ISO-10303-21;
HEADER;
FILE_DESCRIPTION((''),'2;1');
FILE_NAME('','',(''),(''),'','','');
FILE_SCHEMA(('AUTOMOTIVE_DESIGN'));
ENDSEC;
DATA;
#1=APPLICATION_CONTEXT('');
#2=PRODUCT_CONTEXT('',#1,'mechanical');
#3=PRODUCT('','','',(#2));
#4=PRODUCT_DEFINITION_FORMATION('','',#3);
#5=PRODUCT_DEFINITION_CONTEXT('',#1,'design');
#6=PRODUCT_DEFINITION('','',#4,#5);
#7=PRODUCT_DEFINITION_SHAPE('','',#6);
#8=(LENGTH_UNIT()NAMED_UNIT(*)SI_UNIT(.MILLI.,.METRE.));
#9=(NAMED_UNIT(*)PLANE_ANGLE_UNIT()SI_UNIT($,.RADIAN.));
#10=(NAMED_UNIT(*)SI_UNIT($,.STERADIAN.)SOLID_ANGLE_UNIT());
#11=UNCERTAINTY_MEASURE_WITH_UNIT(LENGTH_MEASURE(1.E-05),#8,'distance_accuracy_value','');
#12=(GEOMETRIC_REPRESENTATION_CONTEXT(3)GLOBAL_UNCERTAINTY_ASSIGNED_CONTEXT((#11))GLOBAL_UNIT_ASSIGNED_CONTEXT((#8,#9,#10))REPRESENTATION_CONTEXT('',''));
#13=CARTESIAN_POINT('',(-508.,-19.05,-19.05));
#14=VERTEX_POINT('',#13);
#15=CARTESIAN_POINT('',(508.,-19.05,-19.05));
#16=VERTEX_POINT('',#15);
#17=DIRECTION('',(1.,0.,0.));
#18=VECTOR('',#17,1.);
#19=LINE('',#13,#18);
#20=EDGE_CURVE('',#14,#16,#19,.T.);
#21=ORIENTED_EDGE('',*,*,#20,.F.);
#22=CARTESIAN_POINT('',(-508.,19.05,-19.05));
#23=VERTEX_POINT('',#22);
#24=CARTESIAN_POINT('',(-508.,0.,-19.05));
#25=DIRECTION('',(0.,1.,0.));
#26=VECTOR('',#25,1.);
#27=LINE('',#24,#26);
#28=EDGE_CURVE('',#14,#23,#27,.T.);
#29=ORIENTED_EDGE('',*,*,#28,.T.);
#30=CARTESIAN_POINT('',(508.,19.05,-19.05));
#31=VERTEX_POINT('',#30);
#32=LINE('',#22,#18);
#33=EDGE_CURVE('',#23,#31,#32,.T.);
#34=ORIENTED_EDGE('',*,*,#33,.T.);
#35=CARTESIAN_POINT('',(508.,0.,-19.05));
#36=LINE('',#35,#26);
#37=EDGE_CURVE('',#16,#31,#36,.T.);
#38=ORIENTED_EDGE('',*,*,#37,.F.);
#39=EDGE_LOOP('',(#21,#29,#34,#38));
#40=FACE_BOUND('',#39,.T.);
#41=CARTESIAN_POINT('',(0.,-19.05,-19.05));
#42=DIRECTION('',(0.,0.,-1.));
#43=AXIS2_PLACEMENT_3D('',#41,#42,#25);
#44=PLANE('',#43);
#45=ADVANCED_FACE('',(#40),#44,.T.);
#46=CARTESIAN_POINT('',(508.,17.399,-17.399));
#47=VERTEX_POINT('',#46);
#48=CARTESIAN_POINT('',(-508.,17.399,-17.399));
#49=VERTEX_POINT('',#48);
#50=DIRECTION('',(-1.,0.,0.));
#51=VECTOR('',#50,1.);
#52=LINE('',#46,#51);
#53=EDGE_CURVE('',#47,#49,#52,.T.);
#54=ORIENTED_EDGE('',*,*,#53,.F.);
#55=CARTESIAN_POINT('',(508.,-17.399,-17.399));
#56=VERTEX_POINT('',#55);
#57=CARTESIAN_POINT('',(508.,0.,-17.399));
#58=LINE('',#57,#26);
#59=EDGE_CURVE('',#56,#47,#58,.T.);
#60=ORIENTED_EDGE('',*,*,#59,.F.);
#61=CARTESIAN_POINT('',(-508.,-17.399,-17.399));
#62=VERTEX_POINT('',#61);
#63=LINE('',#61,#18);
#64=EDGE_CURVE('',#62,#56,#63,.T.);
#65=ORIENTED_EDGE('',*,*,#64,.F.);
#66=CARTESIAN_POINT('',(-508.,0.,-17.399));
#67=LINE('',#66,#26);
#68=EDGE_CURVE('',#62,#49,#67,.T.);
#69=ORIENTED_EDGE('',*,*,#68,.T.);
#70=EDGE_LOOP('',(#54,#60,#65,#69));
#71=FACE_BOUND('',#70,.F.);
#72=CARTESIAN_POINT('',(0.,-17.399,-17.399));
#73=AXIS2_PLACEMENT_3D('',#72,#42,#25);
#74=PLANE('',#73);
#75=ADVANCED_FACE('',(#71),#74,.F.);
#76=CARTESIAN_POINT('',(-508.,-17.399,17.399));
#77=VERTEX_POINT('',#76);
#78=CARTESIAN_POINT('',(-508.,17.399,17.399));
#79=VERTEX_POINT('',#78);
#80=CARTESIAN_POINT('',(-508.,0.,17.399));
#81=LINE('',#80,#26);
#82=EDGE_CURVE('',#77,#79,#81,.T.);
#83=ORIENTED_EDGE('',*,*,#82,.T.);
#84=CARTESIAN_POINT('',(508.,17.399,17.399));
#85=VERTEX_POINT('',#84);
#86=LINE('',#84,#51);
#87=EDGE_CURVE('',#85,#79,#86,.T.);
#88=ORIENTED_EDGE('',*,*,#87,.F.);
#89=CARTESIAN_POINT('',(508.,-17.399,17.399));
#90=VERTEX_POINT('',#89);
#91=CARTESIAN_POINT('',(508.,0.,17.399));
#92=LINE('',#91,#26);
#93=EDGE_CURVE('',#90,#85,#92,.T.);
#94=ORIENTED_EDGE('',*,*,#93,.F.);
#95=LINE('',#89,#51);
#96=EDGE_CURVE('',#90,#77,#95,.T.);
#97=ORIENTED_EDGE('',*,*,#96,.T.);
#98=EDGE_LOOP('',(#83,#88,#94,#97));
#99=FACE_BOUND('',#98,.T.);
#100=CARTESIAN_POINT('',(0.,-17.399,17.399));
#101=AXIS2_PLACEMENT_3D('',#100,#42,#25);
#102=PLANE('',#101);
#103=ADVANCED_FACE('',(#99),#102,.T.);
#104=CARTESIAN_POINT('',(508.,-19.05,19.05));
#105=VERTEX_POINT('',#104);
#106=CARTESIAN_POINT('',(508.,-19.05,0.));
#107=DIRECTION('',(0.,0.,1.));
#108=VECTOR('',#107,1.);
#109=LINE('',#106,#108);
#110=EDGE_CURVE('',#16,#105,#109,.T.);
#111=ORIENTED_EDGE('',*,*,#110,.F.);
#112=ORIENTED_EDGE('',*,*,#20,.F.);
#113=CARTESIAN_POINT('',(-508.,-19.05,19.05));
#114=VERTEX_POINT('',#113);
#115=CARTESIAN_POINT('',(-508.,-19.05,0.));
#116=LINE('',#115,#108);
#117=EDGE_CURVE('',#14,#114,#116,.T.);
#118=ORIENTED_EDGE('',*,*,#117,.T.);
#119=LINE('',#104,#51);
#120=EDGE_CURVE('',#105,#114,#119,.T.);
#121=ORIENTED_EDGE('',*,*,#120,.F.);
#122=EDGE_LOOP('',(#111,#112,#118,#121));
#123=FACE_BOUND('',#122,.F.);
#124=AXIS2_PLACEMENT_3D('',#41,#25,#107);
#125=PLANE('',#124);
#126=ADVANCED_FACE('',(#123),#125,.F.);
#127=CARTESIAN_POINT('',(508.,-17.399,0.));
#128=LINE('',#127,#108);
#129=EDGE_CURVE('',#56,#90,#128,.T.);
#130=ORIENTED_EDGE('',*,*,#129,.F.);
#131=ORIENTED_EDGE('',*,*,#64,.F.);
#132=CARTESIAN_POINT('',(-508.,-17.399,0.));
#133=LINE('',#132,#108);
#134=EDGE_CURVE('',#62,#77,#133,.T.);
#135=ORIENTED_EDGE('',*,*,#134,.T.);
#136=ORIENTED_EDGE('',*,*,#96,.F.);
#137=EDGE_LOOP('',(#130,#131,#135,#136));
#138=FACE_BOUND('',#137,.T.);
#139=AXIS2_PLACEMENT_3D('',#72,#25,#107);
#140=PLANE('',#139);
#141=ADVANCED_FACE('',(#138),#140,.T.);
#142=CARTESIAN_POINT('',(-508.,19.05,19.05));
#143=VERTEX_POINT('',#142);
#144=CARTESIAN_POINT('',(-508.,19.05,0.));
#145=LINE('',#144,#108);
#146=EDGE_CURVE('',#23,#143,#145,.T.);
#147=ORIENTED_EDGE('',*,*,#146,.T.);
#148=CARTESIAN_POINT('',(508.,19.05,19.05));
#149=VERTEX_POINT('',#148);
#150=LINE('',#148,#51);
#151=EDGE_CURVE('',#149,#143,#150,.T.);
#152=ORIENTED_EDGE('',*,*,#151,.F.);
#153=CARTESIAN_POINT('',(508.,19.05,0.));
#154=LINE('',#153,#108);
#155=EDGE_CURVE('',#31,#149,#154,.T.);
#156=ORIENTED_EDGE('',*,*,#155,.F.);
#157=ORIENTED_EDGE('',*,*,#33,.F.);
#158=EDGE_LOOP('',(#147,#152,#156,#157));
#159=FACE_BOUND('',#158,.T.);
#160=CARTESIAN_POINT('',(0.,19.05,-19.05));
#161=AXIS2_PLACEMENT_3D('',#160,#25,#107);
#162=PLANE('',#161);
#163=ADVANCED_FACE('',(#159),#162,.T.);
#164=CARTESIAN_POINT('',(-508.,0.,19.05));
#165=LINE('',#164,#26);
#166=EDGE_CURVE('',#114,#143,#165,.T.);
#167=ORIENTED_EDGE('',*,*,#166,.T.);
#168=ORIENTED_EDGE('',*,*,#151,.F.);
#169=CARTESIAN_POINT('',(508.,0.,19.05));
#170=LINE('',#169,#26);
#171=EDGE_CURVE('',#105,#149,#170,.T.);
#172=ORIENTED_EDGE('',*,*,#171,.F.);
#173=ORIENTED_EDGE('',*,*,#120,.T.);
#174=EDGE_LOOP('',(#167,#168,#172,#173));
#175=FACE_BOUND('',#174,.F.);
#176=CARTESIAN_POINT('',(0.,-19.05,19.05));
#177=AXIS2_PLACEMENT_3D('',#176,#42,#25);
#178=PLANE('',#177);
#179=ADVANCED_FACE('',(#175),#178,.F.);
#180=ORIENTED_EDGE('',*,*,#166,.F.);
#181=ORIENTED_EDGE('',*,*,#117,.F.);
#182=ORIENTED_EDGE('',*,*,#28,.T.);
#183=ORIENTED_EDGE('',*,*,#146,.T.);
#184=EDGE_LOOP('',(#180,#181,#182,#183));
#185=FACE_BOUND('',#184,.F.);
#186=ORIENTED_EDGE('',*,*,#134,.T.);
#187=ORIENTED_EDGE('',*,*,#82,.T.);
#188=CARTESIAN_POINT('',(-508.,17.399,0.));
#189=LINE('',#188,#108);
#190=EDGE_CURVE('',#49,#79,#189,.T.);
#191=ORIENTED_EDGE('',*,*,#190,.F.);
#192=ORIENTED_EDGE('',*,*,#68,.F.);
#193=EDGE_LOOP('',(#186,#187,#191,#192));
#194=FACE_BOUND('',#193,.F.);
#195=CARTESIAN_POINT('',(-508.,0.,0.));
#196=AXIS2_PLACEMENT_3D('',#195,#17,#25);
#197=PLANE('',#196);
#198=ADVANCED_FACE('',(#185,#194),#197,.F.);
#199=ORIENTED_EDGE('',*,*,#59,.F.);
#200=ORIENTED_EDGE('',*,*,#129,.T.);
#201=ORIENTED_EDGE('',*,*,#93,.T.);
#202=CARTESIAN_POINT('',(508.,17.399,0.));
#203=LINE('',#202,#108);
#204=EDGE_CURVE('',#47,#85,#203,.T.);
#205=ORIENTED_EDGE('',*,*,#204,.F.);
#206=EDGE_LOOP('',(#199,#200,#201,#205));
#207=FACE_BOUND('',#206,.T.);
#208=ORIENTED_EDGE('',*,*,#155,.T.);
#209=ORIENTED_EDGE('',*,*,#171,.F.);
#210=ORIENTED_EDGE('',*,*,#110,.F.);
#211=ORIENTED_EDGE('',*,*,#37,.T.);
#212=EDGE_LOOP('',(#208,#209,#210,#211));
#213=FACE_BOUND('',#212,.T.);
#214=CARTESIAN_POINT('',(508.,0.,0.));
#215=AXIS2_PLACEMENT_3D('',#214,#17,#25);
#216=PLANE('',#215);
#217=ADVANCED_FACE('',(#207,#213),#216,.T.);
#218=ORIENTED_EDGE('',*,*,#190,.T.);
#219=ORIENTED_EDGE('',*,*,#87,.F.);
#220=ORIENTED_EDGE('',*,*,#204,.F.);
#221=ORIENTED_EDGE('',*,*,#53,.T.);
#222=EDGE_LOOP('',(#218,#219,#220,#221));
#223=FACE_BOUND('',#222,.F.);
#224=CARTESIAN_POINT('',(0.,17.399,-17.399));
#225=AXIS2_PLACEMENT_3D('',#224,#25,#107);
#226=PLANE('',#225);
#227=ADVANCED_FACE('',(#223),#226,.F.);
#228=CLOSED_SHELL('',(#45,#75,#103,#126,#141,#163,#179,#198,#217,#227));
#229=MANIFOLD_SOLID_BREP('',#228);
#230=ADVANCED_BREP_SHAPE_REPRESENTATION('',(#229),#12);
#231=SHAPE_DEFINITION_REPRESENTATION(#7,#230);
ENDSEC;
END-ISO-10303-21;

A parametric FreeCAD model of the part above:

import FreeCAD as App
import Part
import Sketcher
Q = App.Units.Quantity

doc = App.newDocument("Part")
body = doc.addObject("PartDesign::Body", "Body")

# Sketch on YZ plane
sketch1 = doc.addObject("Sketcher::SketchObject", "Sketch")
body.addObject(sketch1)
sketch1.AttachmentSupport = (doc.YZ_Plane, [""])
sketch1.MapMode = "FlatFace"
sketch1.addGeometry([
    Part.LineSegment(App.Vector(-19.05, 19.05, 0), App.Vector(-19.05, -19.05, 0)),  # 0
    Part.LineSegment(App.Vector(-19.05, -19.05, 0), App.Vector(19.05, -19.05, 0)),  # 1
    Part.LineSegment(App.Vector(19.05, -19.05, 0), App.Vector(19.05, 19.05, 0)),  # 2
    Part.LineSegment(App.Vector(19.05, 19.05, 0), App.Vector(-19.05, 19.05, 0)),  # 3
    Part.LineSegment(App.Vector(17.399, -17.399, 0), App.Vector(-17.399, -17.399, 0)),  # 4
    Part.LineSegment(App.Vector(-17.399, -17.399, 0), App.Vector(-17.399, 17.399, 0)),  # 5
    Part.LineSegment(App.Vector(-17.399, 17.399, 0), App.Vector(17.399, 17.399, 0)),  # 6
    Part.LineSegment(App.Vector(17.399, 17.399, 0), App.Vector(17.399, -17.399, 0)),  # 7
], False)
sketch1.addConstraint([
    Sketcher.Constraint("Coincident", 0, 2, 1, 1),
    Sketcher.Constraint("Coincident", 1, 2, 2, 1),
    Sketcher.Constraint("Coincident", 2, 2, 3, 1),
    Sketcher.Constraint("Coincident", 3, 2, 0, 1),
    Sketcher.Constraint("Coincident", 4, 2, 5, 1),
    Sketcher.Constraint("Coincident", 5, 2, 6, 1),
    Sketcher.Constraint("Coincident", 6, 2, 7, 1),
    Sketcher.Constraint("Coincident", 7, 2, 4, 1),
    Sketcher.Constraint("Vertical", 0),
    Sketcher.Constraint("Horizontal", 1),
    Sketcher.Constraint("Vertical", 2),
    Sketcher.Constraint("Horizontal", 3),
    Sketcher.Constraint("Horizontal", 4),
    Sketcher.Constraint("Vertical", 5),
    Sketcher.Constraint("Horizontal", 6),
    Sketcher.Constraint("Vertical", 7),
    Sketcher.Constraint("Symmetric", 0, 2, 2, 2, -1, 1),
    Sketcher.Constraint("Symmetric", 4, 2, 6, 2, -1, 1),
    Sketcher.Constraint("Equal", 3, 0),
    Sketcher.Constraint("Equal", 6, 5),
    Sketcher.Constraint("DistanceX", 1, 1, 1, 2, Q("1.5 in")),
    Sketcher.Constraint("DistanceX", 4, 2, 4, 1, Q("1.37 in")),
])
pad1 = doc.addObject("PartDesign::Pad", "Pad")
body.addObject(pad1)
pad1.Profile = sketch1
pad1.Type = "TwoLengths"
pad1.Length = Q("20 in")
pad1.Length2 = Q("20 in")

doc.recompute()
